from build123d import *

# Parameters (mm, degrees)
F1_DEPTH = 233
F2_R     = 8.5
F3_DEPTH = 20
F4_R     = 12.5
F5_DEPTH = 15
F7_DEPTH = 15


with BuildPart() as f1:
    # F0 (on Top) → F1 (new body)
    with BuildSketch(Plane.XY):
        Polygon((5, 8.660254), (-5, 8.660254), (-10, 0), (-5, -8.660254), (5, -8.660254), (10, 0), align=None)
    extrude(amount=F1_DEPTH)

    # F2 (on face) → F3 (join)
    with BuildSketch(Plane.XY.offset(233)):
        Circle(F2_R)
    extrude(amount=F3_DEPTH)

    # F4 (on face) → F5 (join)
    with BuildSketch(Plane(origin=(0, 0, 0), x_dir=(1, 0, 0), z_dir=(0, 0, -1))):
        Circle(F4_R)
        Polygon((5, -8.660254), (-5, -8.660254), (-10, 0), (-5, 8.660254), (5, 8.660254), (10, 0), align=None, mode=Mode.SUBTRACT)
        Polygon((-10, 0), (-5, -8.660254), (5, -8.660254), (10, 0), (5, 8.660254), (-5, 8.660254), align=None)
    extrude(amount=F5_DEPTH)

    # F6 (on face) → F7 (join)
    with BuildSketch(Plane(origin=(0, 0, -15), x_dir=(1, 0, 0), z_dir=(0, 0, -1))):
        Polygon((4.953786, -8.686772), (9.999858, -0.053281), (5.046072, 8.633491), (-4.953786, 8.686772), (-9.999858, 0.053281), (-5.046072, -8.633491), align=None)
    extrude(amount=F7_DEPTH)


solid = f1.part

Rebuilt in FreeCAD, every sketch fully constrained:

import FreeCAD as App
import Part
import Sketcher

V = App.Vector
Q = App.Units.Quantity


def add_polygon(sketch, points):
    """Adds a closed chain of lines whose ends are joined by coincident constraints."""
    first, n = sketch.GeometryCount, len(points)
    for a, b in zip(points, points[1:] + points[:1]):
        sketch.addGeometry(Part.LineSegment(App.Vector(*a, 0), App.Vector(*b, 0)), False)
    for i in range(n):
        sketch.addConstraint(Sketcher.Constraint("Coincident", first + i, 2, first + (i + 1) % n, 1))

doc = App.newDocument("Part")
params = doc.addObject("Spreadsheet::Sheet", "Params")
for row, (alias, value) in enumerate([
    ("sketch1_width", "10 mm"),
    ("sketch1_length", "10 mm"),
    ("pad1_length", "233 mm"),
    ("sketch2_diameter", "17 mm"),
    ("pad2_length", "20 mm"),
    ("sketch3_diameter", "25 mm"),
    ("pad3_length", "15 mm"),
    ("sketch4_length", "10 mm"),
    ("pad4_length", "15 mm"),
], start=1):
    params.set(f"A{row}", alias)
    params.set(f"B{row}", "=" + value)
    params.setAlias(f"B{row}", alias)

body = doc.addObject("PartDesign::Body", "Body")

# Sketch on XY plane
sketch1 = body.newObject("Sketcher::SketchObject", "Sketch")
sketch1.AttachmentSupport = (doc.getObject("XY_Plane"), [""])
sketch1.MapMode = "FlatFace"
add_polygon(sketch1, [(5, 9), (-5, 9), (-10, 0), (-5, -9), (5, -9), (10, 0)])  # lines 0-5
sketch1.addConstraint([
    Sketcher.Constraint("Horizontal", 0),
    Sketcher.Constraint("Horizontal", 3),
    Sketcher.Constraint("Symmetric", 0, 2, 3, 2, -1, 1),
    Sketcher.Constraint("Symmetric", 1, 2, 4, 2, -1, 1),
    Sketcher.Constraint("PointOnObject", 1, 2, -1),
    Sketcher.Constraint("Parallel", 2, 5),
    Sketcher.Constraint("Vertical", 0, 2, 2, 2),
    Sketcher.Constraint("DistanceX", 0, 2, 0, 1, Q("10 mm")),
    Sketcher.Constraint("Angle", 1, Q("-120 deg")),
    Sketcher.Constraint("Distance", 1, Q("10 mm")),
])
sketch1.setExpression("Constraints[13]", "Params.sketch1_width")
sketch1.setExpression("Constraints[15]", "Params.sketch1_length")
pad1 = body.newObject("PartDesign::Pad", "Pad")
pad1.Profile = sketch1
pad1.setExpression("Length", "Params.pad1_length")

# Sketch on XY plane
sketch2 = body.newObject("Sketcher::SketchObject", "Sketch001")
sketch2.AttachmentSupport = (doc.getObject("XY_Plane"), [""])
sketch2.MapMode = "FlatFace"
sketch2.AttachmentOffset = App.Placement(V(0, 0, 233), App.Rotation())
sketch2.addGeometry(Part.Circle(V(0, 0, 0), V(0, 0, 1), 8), False)
sketch2.addConstraint([
    Sketcher.Constraint("Coincident", 0, 3, -1, 1),
    Sketcher.Constraint("Diameter", 0, Q("17 mm")),
])
sketch2.setExpression("Constraints[1]", "Params.sketch2_diameter")
pad2 = body.newObject("PartDesign::Pad", "Pad001")
pad2.Profile = sketch2
pad2.setExpression("Length", "Params.pad2_length")

# Sketch on XY plane
sketch3 = body.newObject("Sketcher::SketchObject", "Sketch002")
sketch3.AttachmentSupport = (doc.getObject("XY_Plane"), [""])
sketch3.MapMode = "FlatFace"
sketch3.addGeometry(Part.Circle(V(0, 0, 0), V(0, 0, 1), 12), False)
sketch3.addConstraint([
    Sketcher.Constraint("Coincident", 0, 3, -1, 1),
    Sketcher.Constraint("Diameter", 0, Q("25 mm")),
])
sketch3.setExpression("Constraints[1]", "Params.sketch3_diameter")
pad3 = body.newObject("PartDesign::Pad", "Pad002")
pad3.Profile = sketch3
pad3.setExpression("Length", "Params.pad3_length")
pad3.Reversed = True

# Sketch on XY plane
sketch4 = body.newObject("Sketcher::SketchObject", "Sketch003")
sketch4.AttachmentSupport = (doc.getObject("XY_Plane"), [""])
sketch4.MapMode = "FlatFace"
sketch4.AttachmentOffset = App.Placement(V(0, 0, -15), App.Rotation())
add_polygon(sketch4, [(5, 9), (10, 0), (5, -9), (-5, -9), (-10, 0), (-5, 9)])  # lines 0-5
sketch4.addConstraint([
    Sketcher.Constraint("Symmetric", 0, 2, 3, 2, -1, 1),
    Sketcher.Constraint("Symmetric", 1, 2, 4, 2, -1, 1),
    Sketcher.Constraint("Symmetric", 2, 2, 5, 2, -1, 1),
    Sketcher.Constraint("Equal", 0, 1),
    Sketcher.Constraint("Equal", 1, 2),
    Sketcher.Constraint("Distance", 0, Q("10 mm")),
    Sketcher.Constraint("DistanceY", -1, 1, 0, 2, Q("0.053281 mm")),
    Sketcher.Constraint("DistanceX", -1, 1, 1, 2, Q("5.046072 mm")),
    Sketcher.Constraint("DistanceY", 1, 2, -1, 1, Q("8.633491 mm")),
])
sketch4.setExpression("Constraints[11]", "Params.sketch4_length")
pad4 = body.newObject("PartDesign::Pad", "Pad003")
pad4.Profile = sketch4
pad4.setExpression("Length", "Params.pad4_length")
pad4.Reversed = True

doc.recompute()
